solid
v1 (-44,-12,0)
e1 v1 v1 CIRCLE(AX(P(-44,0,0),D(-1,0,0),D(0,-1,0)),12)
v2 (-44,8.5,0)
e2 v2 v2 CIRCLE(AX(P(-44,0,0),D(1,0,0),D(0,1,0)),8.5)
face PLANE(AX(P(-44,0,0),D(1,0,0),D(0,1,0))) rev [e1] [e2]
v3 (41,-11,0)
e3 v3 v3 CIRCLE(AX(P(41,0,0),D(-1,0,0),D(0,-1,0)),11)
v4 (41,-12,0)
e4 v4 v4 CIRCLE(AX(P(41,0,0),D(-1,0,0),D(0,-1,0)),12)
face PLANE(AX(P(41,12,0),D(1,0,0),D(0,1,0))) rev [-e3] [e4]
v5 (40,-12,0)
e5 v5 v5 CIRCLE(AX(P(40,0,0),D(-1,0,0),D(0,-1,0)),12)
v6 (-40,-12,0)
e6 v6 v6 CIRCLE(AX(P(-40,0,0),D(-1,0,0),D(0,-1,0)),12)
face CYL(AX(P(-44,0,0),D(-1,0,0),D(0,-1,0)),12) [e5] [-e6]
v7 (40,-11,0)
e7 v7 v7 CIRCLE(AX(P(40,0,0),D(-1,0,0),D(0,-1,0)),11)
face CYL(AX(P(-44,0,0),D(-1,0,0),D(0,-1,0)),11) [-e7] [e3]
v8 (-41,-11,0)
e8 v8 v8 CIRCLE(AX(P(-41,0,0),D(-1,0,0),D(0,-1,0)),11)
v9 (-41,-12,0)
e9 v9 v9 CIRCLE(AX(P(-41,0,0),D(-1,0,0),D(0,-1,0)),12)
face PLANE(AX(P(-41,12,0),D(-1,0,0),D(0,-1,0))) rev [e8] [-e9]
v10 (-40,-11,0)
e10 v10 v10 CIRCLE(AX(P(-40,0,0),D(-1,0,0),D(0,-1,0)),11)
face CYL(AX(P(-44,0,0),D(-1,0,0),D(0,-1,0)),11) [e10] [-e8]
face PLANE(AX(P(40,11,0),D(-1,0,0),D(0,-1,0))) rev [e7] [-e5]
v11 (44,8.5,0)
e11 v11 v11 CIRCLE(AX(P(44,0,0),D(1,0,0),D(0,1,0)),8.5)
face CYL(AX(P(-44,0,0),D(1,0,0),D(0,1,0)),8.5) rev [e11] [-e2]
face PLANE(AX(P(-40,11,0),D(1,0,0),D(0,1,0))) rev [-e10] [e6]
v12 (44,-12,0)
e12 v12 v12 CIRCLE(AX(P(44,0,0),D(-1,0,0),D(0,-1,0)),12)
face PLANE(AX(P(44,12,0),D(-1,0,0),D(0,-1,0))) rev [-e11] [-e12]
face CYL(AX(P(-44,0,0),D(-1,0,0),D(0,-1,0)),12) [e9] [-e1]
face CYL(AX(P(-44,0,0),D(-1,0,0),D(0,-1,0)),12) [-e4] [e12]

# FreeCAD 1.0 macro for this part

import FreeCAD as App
import Part
import Sketcher
Q = App.Units.Quantity


def add_polygon(sketch, points):
    """Adds a closed chain of lines whose ends are joined by coincident constraints."""
    first, n = sketch.GeometryCount, len(points)
    for a, b in zip(points, points[1:] + points[:1]):
        sketch.addGeometry(Part.LineSegment(App.Vector(*a, 0), App.Vector(*b, 0)), False)
    for i in range(n):
        sketch.addConstraint(Sketcher.Constraint("Coincident", first + i, 2, first + (i + 1) % n, 1))

doc = App.newDocument("Part")
body = doc.addObject("PartDesign::Body", "Body")

# Sketch on XY plane
sketch1 = doc.addObject("Sketcher::SketchObject", "Sketch")
body.addObject(sketch1)
sketch1.AttachmentSupport = (doc.XY_Plane, [""])
sketch1.MapMode = "FlatFace"
add_polygon(sketch1, [(-44, 12), (-44, 0), (44, 0), (44, 12), (41, 12), (41, 11), (40, 11), (40, 12), (-40, 12), (-40, 11), (-41, 11), (-41, 12)])  # lines 0-11
sketch1.addConstraint([
    Sketcher.Constraint("Vertical", 0),
    Sketcher.Constraint("Horizontal", 1),
    Sketcher.Constraint("Vertical", 2),
    Sketcher.Constraint("Horizontal", 3),
    Sketcher.Constraint("Vertical", 4),
    Sketcher.Constraint("Horizontal", 5),
    Sketcher.Constraint("Vertical", 6),
    Sketcher.Constraint("Horizontal", 7),
    Sketcher.Constraint("Vertical", 8),
    Sketcher.Constraint("Horizontal", 9),
    Sketcher.Constraint("Vertical", 10),
    Sketcher.Constraint("Horizontal", 11),
    Sketcher.Constraint("Symmetric", 0, 2, 1, 2, -1, 1),
    Sketcher.Constraint("Symmetric", 5, 2, 8, 2, -2),
    Sketcher.Constraint("Symmetric", 3, 2, 10, 2, -2),
    Sketcher.Constraint("Horizontal", 3, 2, 6, 2),
    Sketcher.Constraint("Equal", 9, 4),
    Sketcher.Constraint("DistanceX", 1, 1, 1, 2, Q("88 mm")),
    Sketcher.Constraint("DistanceX", 3, 2, 3, 1, Q("3 mm")),
    Sketcher.Constraint("DistanceX", 5, 2, 5, 1, Q("1 mm")),
    Sketcher.Constraint("DistanceY", 0, 2, 0, 1, Q("12 mm")),
])
revolution = doc.addObject("PartDesign::Revolution", "Revolution")
body.addObject(revolution)
revolution.Profile = sketch1
revolution.ReferenceAxis = (sketch1, ["H_Axis"])
revolution.Angle = 360

# Sketch on YZ plane
sketch2 = doc.addObject("Sketcher::SketchObject", "Sketch001")
body.addObject(sketch2)
sketch2.AttachmentSupport = (doc.YZ_Plane, [""])
sketch2.MapMode = "FlatFace"
sketch2.AttachmentOffset = App.Placement(App.Vector(0, 0, 44), App.Rotation())
sketch2.addGeometry(Part.Circle(App.Vector(0, 0, 0), App.Vector(0, 0, 1), 8), False)
sketch2.addConstraint([
    Sketcher.Constraint("Coincident", 0, 3, -1, 1),
    Sketcher.Constraint("Diameter", 0, Q("17 mm")),
])
pocket1 = doc.addObject("PartDesign::Pocket", "Pocket")
body.addObject(pocket1)
pocket1.Profile = sketch2
pocket1.Type = "ThroughAll"

doc.recompute()
